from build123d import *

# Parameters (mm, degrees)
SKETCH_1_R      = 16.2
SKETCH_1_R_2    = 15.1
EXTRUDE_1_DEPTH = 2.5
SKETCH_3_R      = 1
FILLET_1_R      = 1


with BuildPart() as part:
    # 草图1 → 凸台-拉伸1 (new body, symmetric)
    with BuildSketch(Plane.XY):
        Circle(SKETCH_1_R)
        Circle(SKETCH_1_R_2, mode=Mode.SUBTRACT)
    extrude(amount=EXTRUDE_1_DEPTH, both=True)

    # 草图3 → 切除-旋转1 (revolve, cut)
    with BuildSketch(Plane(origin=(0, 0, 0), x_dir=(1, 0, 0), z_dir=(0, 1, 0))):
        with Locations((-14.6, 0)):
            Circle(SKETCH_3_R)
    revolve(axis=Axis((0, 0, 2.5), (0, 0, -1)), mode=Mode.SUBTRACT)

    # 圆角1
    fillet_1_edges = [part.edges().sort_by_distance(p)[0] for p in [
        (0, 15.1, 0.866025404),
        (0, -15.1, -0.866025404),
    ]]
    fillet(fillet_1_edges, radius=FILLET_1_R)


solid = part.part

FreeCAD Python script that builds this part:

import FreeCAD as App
import Part
import Sketcher
Q = App.Units.Quantity


def edges_at(feature, points):
    """Names of the edges that pass closest to the given points."""
    edges = feature.Shape.Edges
    near = lambda p: min(range(len(edges)), key=lambda i: edges[i].distToShape(Part.Vertex(*p))[0])
    return sorted({f"Edge{near(p) + 1}" for p in points})

doc = App.newDocument("Part")
body = doc.addObject("PartDesign::Body", "Body")

sketch1 = body.newObject("Sketcher::SketchObject", "Sketch")
sketch1.AttachmentSupport = (doc.getObject("XY_Plane"), [""])
sketch1.MapMode = "FlatFace"
sketch1.addGeometry(Part.Circle(App.Vector(0, 0, 0), App.Vector(0, 0, 1), 16), False)
sketch1.addGeometry(Part.Circle(App.Vector(0, 0, 0), App.Vector(0, 0, 1), 15), False)
sketch1.addConstraint(Sketcher.Constraint("Coincident", 0, 3, -1, 1))
sketch1.addConstraint(Sketcher.Constraint("Coincident", 1, 3, -1, 1))
sketch1.addConstraint(Sketcher.Constraint("Diameter", 0, Q("32.4 mm")))
sketch1.addConstraint(Sketcher.Constraint("Diameter", 1, Q("30.2 mm")))
pad1 = body.newObject("PartDesign::Pad", "Pad")
pad1.Profile = sketch1
pad1.Length = 5
pad1.Midplane = True

sketch2 = body.newObject("Sketcher::SketchObject", "Sketch001")
sketch2.AttachmentSupport = (doc.getObject("XZ_Plane"), [""])
sketch2.MapMode = "FlatFace"
sketch2.addGeometry(Part.Circle(App.Vector(-14.6, 0, 0), App.Vector(0, 0, 1), 1), False)
sketch2.addConstraint(Sketcher.Constraint("PointOnObject", 0, 3, -1))
sketch2.addConstraint(Sketcher.Constraint("Diameter", 0, Q("2 mm")))
sketch2.addConstraint(Sketcher.Constraint("DistanceX", 0, 3, -1, 1, Q("14.6 mm")))
groove = body.newObject("PartDesign::Groove", "Groove")
groove.Profile = sketch2
groove.ReferenceAxis = (sketch2, ["V_Axis"])
groove.Angle = 360
doc.recompute()

fillet = body.newObject("PartDesign::Fillet", "Fillet")
fillet.Base = (groove, edges_at(groove, [(0, 15.1, 0.866), (0, -15.1, -0.866)]))
fillet.Radius = 1

doc.recompute()
